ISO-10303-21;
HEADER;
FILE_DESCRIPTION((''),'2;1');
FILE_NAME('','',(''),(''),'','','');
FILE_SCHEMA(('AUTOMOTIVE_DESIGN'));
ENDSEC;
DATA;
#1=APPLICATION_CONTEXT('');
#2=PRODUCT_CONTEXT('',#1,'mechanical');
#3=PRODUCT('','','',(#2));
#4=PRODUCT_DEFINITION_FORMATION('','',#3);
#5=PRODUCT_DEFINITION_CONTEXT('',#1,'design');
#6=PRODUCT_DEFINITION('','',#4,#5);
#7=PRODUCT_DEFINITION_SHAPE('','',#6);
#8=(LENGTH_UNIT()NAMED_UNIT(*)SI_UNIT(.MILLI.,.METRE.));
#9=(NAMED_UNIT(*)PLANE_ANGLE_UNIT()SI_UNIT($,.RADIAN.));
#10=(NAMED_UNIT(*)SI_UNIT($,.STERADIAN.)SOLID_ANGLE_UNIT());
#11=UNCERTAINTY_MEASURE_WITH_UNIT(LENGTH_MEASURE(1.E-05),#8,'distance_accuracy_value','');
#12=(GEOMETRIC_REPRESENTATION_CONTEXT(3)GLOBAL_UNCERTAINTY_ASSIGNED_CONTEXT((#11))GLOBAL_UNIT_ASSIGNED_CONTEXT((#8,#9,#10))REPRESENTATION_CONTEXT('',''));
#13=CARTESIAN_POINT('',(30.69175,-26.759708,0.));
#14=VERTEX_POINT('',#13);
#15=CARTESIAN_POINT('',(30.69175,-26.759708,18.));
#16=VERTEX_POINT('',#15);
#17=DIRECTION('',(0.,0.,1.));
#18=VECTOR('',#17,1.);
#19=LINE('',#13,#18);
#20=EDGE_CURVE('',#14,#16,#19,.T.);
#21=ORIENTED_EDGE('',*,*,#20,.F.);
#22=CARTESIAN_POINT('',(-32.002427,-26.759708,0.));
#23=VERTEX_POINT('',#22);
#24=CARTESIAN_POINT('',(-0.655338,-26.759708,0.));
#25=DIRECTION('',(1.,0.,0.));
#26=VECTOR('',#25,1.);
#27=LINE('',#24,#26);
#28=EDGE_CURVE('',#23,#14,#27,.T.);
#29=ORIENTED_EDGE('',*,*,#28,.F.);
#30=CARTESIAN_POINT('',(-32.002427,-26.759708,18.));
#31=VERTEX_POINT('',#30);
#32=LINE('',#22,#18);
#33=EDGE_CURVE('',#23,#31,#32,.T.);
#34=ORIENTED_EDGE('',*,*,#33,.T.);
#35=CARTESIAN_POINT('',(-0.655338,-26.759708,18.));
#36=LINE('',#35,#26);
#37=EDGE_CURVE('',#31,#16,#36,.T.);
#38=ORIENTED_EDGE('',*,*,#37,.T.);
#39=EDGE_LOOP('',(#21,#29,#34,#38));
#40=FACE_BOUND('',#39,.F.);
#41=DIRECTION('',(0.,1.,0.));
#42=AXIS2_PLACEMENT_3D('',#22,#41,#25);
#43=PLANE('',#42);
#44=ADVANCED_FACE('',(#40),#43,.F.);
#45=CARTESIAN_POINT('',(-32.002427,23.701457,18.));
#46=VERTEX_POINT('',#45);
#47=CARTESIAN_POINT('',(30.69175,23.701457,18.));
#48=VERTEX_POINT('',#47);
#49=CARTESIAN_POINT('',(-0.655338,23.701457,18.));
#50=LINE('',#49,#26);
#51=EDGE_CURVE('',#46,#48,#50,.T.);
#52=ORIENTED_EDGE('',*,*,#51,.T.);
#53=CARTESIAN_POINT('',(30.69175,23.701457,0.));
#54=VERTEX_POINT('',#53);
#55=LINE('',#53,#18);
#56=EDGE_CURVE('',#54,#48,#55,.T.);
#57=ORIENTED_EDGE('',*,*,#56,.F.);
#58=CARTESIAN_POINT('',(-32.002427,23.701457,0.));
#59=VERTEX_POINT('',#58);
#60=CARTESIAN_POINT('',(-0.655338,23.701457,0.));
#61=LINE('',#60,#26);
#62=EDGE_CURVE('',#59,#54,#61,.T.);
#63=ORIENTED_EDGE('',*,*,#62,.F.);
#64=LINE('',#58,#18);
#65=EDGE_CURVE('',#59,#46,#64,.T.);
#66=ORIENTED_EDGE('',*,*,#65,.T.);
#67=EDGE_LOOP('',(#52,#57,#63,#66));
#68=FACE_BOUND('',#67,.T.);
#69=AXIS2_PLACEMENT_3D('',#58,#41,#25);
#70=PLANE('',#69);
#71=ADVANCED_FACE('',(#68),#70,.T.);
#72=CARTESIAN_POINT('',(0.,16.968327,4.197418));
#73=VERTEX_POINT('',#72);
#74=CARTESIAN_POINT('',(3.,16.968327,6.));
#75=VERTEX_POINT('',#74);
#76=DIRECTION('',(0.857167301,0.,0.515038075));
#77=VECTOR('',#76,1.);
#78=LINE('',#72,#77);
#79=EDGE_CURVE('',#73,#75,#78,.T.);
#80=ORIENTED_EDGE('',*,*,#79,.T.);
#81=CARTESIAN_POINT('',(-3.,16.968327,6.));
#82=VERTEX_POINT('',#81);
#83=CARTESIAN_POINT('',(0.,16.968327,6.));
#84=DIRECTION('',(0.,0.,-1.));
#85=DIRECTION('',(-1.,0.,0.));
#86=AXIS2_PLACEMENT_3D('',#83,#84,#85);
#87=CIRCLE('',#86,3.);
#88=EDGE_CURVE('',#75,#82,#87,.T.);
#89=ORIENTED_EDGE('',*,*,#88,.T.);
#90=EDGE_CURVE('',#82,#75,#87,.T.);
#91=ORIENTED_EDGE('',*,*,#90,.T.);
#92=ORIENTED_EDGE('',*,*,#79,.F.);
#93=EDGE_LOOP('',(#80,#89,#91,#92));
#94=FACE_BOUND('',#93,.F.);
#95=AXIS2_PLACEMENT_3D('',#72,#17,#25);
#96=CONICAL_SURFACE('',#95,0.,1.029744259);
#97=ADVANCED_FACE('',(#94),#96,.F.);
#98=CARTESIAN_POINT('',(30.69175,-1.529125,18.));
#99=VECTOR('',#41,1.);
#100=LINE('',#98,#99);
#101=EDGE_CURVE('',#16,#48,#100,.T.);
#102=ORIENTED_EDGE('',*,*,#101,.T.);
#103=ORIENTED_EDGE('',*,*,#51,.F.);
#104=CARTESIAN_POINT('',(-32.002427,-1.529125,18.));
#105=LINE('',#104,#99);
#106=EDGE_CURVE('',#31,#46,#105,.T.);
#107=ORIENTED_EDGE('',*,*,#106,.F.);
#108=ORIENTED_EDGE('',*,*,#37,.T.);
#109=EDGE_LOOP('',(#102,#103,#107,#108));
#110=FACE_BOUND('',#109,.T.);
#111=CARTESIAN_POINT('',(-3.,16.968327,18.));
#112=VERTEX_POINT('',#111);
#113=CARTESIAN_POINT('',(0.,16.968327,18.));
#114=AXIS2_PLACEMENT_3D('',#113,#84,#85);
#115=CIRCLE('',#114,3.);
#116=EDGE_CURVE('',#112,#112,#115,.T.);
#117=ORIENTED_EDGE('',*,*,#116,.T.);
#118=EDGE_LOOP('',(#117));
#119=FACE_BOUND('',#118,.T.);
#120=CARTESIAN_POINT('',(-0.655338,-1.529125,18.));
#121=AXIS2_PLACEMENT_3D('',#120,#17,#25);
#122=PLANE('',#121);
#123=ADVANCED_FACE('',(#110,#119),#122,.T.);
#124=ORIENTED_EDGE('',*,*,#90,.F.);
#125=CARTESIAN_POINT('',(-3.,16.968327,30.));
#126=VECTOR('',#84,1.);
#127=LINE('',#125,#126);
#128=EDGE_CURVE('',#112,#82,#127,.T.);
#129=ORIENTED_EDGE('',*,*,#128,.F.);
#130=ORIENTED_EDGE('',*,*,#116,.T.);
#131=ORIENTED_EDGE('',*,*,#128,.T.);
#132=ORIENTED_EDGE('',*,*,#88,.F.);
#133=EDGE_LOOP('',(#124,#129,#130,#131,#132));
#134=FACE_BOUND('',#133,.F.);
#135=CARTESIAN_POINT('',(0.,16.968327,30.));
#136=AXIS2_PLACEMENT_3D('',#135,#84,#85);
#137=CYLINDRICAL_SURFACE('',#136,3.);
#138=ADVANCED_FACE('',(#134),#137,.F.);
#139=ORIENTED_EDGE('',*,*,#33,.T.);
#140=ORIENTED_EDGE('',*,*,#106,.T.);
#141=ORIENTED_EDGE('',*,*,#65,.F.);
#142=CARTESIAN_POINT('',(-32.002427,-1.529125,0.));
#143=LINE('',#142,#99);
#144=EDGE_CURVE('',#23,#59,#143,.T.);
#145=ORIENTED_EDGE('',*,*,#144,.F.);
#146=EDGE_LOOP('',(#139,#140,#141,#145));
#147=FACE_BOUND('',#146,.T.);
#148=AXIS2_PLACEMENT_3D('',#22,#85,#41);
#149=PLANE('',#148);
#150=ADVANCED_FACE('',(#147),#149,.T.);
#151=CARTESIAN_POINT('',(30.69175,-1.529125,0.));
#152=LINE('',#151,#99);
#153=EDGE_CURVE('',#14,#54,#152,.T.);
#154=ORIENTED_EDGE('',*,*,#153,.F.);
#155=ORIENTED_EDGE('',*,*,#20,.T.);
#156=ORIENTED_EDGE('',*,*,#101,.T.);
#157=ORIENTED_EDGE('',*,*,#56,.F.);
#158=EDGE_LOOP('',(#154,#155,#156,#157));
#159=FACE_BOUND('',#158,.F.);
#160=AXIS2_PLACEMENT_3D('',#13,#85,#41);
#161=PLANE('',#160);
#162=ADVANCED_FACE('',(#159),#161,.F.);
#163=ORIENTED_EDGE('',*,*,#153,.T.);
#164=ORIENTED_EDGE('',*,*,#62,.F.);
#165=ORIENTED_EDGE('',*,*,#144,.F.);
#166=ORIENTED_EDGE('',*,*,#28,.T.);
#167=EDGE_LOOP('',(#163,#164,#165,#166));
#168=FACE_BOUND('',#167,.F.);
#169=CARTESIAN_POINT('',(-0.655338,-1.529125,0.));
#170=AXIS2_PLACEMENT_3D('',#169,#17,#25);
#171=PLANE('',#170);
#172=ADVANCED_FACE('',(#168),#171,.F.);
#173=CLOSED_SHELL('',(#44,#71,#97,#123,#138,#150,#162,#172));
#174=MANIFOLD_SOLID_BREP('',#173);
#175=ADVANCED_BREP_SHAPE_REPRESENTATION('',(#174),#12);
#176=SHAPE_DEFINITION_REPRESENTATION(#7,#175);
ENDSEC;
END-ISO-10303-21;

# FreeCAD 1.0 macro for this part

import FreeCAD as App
import Part
import Sketcher

V = App.Vector
Q = App.Units.Quantity


def add_polygon(sketch, points):
    """Adds a closed chain of lines whose ends are joined by coincident constraints."""
    first, n = sketch.GeometryCount, len(points)
    for a, b in zip(points, points[1:] + points[:1]):
        sketch.addGeometry(Part.LineSegment(App.Vector(*a, 0), App.Vector(*b, 0)), False)
    for i in range(n):
        sketch.addConstraint(Sketcher.Constraint("Coincident", first + i, 2, first + (i + 1) % n, 1))

doc = App.newDocument("Part")
body = doc.addObject("PartDesign::Body", "Body")

sketch1 = body.newObject("Sketcher::SketchObject", "Sketch")
sketch1.AttachmentSupport = (doc.getObject("XY_Plane"), [""])
sketch1.MapMode = "FlatFace"
add_polygon(sketch1, [(-32, 24), (-32, -27), (31, -27), (31, 24)])
sketch1.addConstraint(Sketcher.Constraint("Vertical", 0))
sketch1.addConstraint(Sketcher.Constraint("Horizontal", 1))
sketch1.addConstraint(Sketcher.Constraint("Vertical", 2))
sketch1.addConstraint(Sketcher.Constraint("Horizontal", 3))
sketch1.addConstraint(Sketcher.Constraint("DistanceX", 1, 1, 1, 2, Q("62.694177 mm")))
sketch1.addConstraint(Sketcher.Constraint("DistanceY", 0, 2, 0, 1, Q("50.461166 mm")))
sketch1.addConstraint(Sketcher.Constraint("DistanceY", 0, 2, -1, 1, Q("26.759708 mm")))
sketch1.addConstraint(Sketcher.Constraint("DistanceX", -1, 1, 1, 2, Q("30.69175 mm")))
pad1 = body.newObject("PartDesign::Pad", "Pad")
pad1.Profile = sketch1
pad1.Length = 18

sketch2 = body.newObject("Sketcher::SketchObject", "Sketch001")
sketch2.AttachmentSupport = (doc.getObject("XY_Plane"), [""])
sketch2.MapMode = "FlatFace"
sketch2.AttachmentOffset = App.Placement(V(0, 0, 18), App.Rotation())
sketch2.addGeometry(Part.Circle(V(0, 17, 0), V(0, 0, 1), 3), False)
sketch2.addConstraint(Sketcher.Constraint("PointOnObject", 0, 3, -2))
sketch2.addConstraint(Sketcher.Constraint("Diameter", 0, Q("6 mm")))
sketch2.addConstraint(Sketcher.Constraint("DistanceY", -1, 1, 0, 3, Q("16.968327 mm")))
doc.recompute()
hole = body.newObject("PartDesign::Hole", "Hole")
hole.Profile = sketch2
hole.ThreadType = "None"
hole.Diameter = 6
hole.DepthType = "Dimension"
hole.Depth = 12
hole.DrillPoint = "Angled"
hole.DrillPointAngle = 118

doc.recompute()
